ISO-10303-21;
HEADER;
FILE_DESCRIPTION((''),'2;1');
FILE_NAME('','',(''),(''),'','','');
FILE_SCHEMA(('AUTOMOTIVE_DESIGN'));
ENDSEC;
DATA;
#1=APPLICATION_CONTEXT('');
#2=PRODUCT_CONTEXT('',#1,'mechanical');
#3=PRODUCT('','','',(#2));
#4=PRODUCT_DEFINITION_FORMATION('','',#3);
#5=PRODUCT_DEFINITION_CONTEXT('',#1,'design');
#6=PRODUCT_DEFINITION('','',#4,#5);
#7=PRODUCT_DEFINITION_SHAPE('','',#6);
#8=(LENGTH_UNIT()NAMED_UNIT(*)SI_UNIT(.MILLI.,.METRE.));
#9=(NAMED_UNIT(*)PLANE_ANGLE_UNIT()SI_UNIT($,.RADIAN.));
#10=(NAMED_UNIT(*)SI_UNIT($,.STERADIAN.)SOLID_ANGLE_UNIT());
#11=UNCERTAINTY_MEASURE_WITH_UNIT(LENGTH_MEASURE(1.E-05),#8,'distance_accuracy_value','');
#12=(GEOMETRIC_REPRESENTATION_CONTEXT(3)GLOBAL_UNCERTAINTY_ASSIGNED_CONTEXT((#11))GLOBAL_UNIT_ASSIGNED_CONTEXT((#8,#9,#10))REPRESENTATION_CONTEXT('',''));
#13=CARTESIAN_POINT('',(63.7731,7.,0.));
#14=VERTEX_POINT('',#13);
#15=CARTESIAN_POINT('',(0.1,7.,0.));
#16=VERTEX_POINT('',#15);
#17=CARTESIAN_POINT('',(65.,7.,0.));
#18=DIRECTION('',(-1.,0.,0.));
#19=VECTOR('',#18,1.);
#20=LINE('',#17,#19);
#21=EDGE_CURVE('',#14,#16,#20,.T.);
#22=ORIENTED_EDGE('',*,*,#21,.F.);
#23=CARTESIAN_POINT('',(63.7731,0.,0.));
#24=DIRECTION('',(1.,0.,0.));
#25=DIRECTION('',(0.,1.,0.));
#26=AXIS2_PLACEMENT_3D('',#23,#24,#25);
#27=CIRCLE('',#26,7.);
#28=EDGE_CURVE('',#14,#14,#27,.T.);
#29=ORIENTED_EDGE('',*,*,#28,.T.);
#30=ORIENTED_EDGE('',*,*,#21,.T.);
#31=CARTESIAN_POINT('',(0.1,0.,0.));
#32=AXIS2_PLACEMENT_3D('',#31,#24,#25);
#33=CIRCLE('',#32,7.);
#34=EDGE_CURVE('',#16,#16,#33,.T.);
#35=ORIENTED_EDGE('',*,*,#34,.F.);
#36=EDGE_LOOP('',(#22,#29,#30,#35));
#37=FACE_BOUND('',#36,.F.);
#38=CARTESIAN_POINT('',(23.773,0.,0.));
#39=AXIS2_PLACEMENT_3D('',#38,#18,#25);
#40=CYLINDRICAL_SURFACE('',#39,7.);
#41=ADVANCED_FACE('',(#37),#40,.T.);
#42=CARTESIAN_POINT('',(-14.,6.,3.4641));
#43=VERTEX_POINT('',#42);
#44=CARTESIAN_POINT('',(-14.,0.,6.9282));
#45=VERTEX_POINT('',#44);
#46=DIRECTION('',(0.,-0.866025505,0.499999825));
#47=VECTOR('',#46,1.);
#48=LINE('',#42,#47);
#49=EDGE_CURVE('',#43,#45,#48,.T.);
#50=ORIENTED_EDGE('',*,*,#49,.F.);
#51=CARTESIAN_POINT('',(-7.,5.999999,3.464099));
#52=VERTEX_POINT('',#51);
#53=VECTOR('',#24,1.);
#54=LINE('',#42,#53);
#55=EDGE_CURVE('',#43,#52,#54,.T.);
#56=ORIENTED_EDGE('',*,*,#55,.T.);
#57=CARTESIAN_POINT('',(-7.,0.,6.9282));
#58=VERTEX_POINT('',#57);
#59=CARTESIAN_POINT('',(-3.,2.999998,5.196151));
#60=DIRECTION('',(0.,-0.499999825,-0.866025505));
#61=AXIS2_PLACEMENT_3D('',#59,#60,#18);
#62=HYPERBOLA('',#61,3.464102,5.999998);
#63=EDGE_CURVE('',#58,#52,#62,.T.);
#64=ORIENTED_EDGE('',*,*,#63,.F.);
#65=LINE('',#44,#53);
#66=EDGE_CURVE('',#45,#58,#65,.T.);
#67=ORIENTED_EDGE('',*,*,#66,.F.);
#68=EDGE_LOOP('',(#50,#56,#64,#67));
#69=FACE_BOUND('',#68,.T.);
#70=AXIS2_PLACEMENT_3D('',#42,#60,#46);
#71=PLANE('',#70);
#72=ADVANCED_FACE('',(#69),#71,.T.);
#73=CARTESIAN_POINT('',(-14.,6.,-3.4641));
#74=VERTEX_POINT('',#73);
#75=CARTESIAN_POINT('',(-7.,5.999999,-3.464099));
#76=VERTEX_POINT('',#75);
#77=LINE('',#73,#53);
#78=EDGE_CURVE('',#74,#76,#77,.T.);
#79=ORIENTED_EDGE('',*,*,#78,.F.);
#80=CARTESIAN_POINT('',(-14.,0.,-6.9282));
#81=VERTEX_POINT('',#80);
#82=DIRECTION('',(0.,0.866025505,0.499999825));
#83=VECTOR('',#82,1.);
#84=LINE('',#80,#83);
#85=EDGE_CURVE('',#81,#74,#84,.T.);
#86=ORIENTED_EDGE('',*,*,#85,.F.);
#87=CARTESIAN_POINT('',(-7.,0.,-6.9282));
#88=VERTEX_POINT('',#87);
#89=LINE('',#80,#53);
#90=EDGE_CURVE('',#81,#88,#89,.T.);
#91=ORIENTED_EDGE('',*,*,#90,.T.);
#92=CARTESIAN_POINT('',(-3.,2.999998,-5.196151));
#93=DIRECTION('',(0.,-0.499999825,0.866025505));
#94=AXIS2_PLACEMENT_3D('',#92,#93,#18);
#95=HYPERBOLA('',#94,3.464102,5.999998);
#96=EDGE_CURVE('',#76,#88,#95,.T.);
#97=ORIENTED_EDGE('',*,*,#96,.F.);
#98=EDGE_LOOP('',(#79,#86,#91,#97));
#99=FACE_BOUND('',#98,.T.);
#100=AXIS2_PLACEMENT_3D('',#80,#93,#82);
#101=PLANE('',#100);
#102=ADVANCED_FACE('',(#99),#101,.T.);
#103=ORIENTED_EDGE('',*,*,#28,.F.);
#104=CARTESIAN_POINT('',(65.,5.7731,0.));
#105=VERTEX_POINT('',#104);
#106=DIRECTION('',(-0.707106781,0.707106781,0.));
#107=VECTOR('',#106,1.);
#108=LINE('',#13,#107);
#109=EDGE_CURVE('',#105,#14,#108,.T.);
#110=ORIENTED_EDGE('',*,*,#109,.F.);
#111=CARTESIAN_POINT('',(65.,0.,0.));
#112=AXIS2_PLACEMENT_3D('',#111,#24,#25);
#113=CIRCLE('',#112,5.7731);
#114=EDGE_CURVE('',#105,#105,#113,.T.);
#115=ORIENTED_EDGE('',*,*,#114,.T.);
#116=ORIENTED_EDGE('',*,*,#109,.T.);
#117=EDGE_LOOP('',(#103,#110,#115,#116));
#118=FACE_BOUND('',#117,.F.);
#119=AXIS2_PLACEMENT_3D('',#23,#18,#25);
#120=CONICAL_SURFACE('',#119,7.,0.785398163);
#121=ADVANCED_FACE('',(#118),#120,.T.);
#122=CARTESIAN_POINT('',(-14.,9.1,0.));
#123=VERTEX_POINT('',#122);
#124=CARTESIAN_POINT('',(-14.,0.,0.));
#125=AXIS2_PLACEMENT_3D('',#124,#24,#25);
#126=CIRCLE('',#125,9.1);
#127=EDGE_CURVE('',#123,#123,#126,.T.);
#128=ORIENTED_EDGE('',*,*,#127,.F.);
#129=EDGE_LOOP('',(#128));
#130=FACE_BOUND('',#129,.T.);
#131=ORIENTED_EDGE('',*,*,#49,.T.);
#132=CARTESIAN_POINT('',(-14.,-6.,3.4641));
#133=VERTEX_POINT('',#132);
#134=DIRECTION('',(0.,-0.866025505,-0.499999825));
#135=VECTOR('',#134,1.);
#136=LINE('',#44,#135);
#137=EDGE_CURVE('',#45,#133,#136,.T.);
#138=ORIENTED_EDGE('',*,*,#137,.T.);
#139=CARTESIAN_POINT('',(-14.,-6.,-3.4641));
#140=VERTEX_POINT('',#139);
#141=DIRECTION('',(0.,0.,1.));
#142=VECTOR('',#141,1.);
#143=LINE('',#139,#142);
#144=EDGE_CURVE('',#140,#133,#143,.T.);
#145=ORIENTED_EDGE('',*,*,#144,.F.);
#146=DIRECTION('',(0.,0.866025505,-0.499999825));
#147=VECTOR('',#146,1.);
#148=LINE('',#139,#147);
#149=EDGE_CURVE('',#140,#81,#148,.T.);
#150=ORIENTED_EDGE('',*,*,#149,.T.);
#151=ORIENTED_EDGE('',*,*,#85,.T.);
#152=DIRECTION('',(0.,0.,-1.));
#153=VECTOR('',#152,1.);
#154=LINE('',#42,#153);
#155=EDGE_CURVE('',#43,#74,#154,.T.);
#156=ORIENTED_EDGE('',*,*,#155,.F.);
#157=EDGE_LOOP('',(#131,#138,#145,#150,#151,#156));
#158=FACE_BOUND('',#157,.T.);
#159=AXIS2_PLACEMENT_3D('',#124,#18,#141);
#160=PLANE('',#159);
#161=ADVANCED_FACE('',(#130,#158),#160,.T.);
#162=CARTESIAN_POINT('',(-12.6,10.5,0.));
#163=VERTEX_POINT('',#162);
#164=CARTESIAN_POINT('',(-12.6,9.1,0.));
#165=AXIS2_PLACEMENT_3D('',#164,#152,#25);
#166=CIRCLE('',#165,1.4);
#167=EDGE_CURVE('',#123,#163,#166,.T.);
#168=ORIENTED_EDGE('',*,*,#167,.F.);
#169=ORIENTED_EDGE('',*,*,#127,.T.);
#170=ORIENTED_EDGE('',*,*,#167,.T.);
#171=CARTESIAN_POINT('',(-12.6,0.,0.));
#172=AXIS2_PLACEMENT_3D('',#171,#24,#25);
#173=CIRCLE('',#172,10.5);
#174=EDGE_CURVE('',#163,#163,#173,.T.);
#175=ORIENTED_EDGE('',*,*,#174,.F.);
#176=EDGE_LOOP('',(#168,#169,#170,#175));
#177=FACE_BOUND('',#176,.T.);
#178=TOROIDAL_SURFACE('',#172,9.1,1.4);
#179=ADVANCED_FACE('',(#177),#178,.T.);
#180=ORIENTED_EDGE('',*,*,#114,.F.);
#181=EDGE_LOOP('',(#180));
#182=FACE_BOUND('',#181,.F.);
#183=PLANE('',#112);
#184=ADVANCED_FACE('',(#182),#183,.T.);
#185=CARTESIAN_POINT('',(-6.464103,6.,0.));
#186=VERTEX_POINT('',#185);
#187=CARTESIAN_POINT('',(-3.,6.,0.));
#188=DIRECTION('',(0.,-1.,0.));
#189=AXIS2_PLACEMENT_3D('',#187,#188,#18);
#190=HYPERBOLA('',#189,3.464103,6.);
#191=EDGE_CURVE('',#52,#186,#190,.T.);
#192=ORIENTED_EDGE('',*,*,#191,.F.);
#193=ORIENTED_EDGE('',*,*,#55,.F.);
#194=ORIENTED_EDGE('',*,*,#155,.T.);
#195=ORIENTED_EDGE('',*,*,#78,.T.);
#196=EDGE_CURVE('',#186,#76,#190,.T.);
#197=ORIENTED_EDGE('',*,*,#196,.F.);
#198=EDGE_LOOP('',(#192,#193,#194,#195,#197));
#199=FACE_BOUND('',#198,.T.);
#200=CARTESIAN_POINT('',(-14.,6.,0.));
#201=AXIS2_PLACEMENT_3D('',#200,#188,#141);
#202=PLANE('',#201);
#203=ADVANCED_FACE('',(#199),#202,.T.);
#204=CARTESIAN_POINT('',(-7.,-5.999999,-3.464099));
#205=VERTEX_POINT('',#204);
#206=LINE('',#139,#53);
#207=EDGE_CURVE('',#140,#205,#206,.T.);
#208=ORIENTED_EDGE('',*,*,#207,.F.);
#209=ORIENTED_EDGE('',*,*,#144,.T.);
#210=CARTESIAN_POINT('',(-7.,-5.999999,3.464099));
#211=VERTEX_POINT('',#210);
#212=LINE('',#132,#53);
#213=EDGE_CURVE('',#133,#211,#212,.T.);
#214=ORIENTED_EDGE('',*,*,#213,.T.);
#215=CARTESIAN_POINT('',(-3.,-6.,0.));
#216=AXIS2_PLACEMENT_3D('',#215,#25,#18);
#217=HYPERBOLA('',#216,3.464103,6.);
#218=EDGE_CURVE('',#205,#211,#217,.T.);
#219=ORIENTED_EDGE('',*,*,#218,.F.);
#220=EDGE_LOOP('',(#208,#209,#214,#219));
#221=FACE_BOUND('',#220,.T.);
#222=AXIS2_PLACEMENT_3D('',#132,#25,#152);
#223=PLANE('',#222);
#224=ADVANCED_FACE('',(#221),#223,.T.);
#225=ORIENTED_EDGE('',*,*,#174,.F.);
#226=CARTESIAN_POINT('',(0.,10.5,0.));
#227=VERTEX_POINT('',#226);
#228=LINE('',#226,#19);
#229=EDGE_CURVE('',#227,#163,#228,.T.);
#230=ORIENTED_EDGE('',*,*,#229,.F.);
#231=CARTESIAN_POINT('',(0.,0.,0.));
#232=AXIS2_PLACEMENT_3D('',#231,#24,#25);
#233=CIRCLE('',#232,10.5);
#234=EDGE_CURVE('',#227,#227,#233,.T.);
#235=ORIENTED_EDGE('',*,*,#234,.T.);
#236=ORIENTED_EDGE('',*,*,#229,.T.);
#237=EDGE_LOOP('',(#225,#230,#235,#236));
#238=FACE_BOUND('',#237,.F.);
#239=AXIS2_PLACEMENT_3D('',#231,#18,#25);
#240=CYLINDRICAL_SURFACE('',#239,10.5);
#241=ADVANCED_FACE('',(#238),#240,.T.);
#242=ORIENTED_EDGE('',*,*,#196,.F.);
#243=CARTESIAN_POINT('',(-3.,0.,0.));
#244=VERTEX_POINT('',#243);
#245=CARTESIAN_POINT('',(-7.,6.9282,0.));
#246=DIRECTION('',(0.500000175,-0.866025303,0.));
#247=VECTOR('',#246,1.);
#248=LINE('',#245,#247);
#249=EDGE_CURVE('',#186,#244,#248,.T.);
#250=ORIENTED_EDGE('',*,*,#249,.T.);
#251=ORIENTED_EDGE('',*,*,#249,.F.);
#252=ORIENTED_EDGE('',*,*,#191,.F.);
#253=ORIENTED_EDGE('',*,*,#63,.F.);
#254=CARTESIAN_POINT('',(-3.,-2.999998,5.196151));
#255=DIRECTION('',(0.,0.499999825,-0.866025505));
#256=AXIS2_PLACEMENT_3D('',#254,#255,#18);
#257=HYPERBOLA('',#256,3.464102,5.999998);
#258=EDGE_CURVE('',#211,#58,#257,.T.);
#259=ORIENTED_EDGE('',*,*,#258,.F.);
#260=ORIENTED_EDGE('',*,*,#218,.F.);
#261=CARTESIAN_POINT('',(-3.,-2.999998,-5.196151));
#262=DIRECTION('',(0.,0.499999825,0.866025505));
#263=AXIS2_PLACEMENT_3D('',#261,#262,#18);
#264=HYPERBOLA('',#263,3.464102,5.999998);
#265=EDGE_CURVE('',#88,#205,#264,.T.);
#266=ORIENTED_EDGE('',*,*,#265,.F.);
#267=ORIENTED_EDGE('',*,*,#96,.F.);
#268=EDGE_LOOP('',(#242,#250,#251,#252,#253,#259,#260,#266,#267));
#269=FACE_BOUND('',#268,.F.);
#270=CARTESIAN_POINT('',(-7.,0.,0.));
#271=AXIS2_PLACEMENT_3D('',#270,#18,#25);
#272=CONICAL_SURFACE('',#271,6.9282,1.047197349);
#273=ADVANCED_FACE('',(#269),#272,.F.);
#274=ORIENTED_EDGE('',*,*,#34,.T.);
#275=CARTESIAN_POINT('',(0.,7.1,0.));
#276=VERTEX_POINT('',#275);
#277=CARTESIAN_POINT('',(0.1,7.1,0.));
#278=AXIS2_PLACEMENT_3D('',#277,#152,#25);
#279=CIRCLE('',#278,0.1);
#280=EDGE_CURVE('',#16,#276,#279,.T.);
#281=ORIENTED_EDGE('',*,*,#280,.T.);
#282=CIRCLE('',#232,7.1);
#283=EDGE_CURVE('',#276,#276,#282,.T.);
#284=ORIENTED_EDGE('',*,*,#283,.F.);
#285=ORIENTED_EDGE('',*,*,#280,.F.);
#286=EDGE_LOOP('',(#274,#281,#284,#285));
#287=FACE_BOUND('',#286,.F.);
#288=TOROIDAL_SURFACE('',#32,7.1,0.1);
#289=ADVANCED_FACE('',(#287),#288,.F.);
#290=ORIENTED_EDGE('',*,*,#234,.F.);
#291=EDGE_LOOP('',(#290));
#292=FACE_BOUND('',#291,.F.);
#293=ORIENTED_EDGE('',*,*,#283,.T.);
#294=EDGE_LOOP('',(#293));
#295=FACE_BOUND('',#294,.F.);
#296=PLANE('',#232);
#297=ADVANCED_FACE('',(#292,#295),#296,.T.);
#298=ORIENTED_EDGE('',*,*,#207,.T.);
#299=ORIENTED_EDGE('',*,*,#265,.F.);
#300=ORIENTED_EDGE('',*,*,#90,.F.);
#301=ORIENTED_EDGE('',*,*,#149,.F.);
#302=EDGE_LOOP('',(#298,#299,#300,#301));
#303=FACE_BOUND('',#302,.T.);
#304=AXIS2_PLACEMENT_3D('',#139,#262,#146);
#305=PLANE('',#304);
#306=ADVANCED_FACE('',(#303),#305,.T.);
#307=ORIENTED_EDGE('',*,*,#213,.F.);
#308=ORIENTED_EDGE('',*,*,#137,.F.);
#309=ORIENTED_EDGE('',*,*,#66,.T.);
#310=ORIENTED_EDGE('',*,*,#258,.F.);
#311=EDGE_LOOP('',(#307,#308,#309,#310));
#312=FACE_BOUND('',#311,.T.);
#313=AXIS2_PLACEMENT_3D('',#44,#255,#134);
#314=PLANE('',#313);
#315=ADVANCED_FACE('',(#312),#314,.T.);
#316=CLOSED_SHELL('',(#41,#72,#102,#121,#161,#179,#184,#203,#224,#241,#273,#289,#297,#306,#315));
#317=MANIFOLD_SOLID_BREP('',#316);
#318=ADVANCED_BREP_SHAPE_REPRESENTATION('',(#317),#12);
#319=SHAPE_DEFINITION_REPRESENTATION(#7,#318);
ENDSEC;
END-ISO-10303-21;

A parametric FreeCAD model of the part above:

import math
import FreeCAD as App
import Part
import Sketcher
Q = App.Units.Quantity


def edges_at(feature, points):
    """Names of the edges that pass closest to the given points."""
    edges = feature.Shape.Edges
    near = lambda p: min(range(len(edges)), key=lambda i: edges[i].distToShape(Part.Vertex(*p))[0])
    return sorted({f"Edge{near(p) + 1}" for p in points})


def add_polygon(sketch, points):
    """Adds a closed chain of lines whose ends are joined by coincident constraints."""
    first, n = sketch.GeometryCount, len(points)
    for a, b in zip(points, points[1:] + points[:1]):
        sketch.addGeometry(Part.LineSegment(App.Vector(*a, 0), App.Vector(*b, 0)), False)
    for i in range(n):
        sketch.addConstraint(Sketcher.Constraint("Coincident", first + i, 2, first + (i + 1) % n, 1))

doc = App.newDocument("Part")
body = doc.addObject("PartDesign::Body", "Body")

# Sketch on XY plane
sketch1 = body.newObject("Sketcher::SketchObject", "Sketch")
sketch1.AttachmentSupport = (doc.getObject("XY_Plane"), [""])
sketch1.MapMode = "FlatFace"
add_polygon(sketch1, [(-7, 6.9), (-3, 0), (65, 0), (65, 7), (0, 7), (0, 10.5), (-14, 10.5), (-14, 6.9)])  # lines 0-7
sketch1.addConstraint(Sketcher.Constraint("Horizontal", 1))
sketch1.addConstraint(Sketcher.Constraint("Vertical", 2))
sketch1.addConstraint(Sketcher.Constraint("Horizontal", 3))
sketch1.addConstraint(Sketcher.Constraint("Vertical", 4))
sketch1.addConstraint(Sketcher.Constraint("Horizontal", 5))
sketch1.addConstraint(Sketcher.Constraint("Vertical", 6))
sketch1.addConstraint(Sketcher.Constraint("Horizontal", 7))
sketch1.addConstraint(Sketcher.Constraint("PointOnObject", 0, 2, -1))
sketch1.addConstraint(Sketcher.Constraint("PointOnObject", 3, 2, -2))
sketch1.addConstraint(Sketcher.Constraint("Equal", 7, 2))
sketch1.addConstraint(Sketcher.Constraint("DistanceX", 3, 2, 3, 1, Q("65 mm")))
sketch1.addConstraint(Sketcher.Constraint("DistanceX", 5, 2, 5, 1, Q("14 mm")))
sketch1.addConstraint(Sketcher.Constraint("DistanceX", 7, 1, 7, 2, Q("7 mm")))
sketch1.addConstraint(Sketcher.Constraint("Angle", 0, Q("-60 deg")))
sketch1.addConstraint(Sketcher.Constraint("DistanceX", 1, 1, 1, 2, Q("68 mm")))
sketch1.addConstraint(Sketcher.Constraint("DistanceY", 4, 1, 4, 2, Q("3.5 mm")))
revolution = body.newObject("PartDesign::Revolution", "Revolution")
revolution.Profile = sketch1
revolution.ReferenceAxis = (sketch1, ["H_Axis"])
revolution.Angle = 360

# Sketch on YZ plane
sketch2 = body.newObject("Sketcher::SketchObject", "Sketch001")
sketch2.AttachmentSupport = (doc.getObject("YZ_Plane"), [""])
sketch2.MapMode = "FlatFace"
sketch2.AttachmentOffset = App.Placement(App.Vector(0, 0, -14), App.Rotation())
sketch2.addGeometry(Part.LineSegment(App.Vector(6, 3, 0), App.Vector(0, 7, 0)), False)
sketch2.addGeometry(Part.ArcOfCircle(Part.Circle(App.Vector(0, 0, 0), App.Vector(0, 0, 1), 7), math.radians(30), math.radians(90)), False)
sketch2.addGeometry(Part.ArcOfCircle(Part.Circle(App.Vector(0, 0, 0), App.Vector(0, 0, 1), 7), math.radians(90), math.radians(150)), False)
sketch2.addGeometry(Part.LineSegment(App.Vector(0, 7, 0), App.Vector(-6, 3, 0)), False)
sketch2.addGeometry(Part.ArcOfCircle(Part.Circle(App.Vector(0, 0, 0), App.Vector(0, 0, 1), 7), math.radians(-30), math.radians(30)), False)
sketch2.addGeometry(Part.LineSegment(App.Vector(6, 3, 0), App.Vector(6, -3, 0)), False)
sketch2.addGeometry(Part.LineSegment(App.Vector(-6, 3, 0), App.Vector(-6, -3, 0)), False)
sketch2.addGeometry(Part.ArcOfCircle(Part.Circle(App.Vector(0, 0, 0), App.Vector(0, 0, 1), 7), math.radians(150), math.radians(210)), False)
sketch2.addGeometry(Part.LineSegment(App.Vector(-6, -3, 0), App.Vector(0, -7, 0)), False)
sketch2.addGeometry(Part.ArcOfCircle(Part.Circle(App.Vector(0, 0, 0), App.Vector(0, 0, 1), 7), math.radians(-150), math.radians(-90)), False)
sketch2.addGeometry(Part.ArcOfCircle(Part.Circle(App.Vector(0, 0, 0), App.Vector(0, 0, 1), 7), math.radians(-90), math.radians(-30)), False)
sketch2.addGeometry(Part.LineSegment(App.Vector(0, -7, 0), App.Vector(6, -3, 0)), False)
sketch2.addConstraint(Sketcher.Constraint("Coincident", 0, 1, 1, 1))
sketch2.addConstraint(Sketcher.Constraint("Coincident", 1, 2, 0, 2))
sketch2.addConstraint(Sketcher.Constraint("Coincident", 2, 1, 3, 1))
sketch2.addConstraint(Sketcher.Constraint("Coincident", 3, 2, 2, 2))
sketch2.addConstraint(Sketcher.Constraint("Coincident", 4, 1, 5, 2))
sketch2.addConstraint(Sketcher.Constraint("Coincident", 5, 1, 4, 2))
sketch2.addConstraint(Sketcher.Constraint("Coincident", 6, 1, 7, 1))
sketch2.addConstraint(Sketcher.Constraint("Coincident", 7, 2, 6, 2))
sketch2.addConstraint(Sketcher.Constraint("Coincident", 8, 1, 9, 1))
sketch2.addConstraint(Sketcher.Constraint("Coincident", 9, 2, 8, 2))
sketch2.addConstraint(Sketcher.Constraint("Coincident", 10, 1, 11, 1))
sketch2.addConstraint(Sketcher.Constraint("Coincident", 11, 2, 10, 2))
sketch2.addConstraint(Sketcher.Constraint("Vertical", 5))
sketch2.addConstraint(Sketcher.Constraint("Vertical", 6))
sketch2.addConstraint(Sketcher.Constraint("Coincident", 1, 3, -1, 1))
sketch2.addConstraint(Sketcher.Constraint("Coincident", 2, 3, -1, 1))
sketch2.addConstraint(Sketcher.Constraint("Coincident", 4, 3, -1, 1))
sketch2.addConstraint(Sketcher.Constraint("Coincident", 7, 3, -1, 1))
sketch2.addConstraint(Sketcher.Constraint("Coincident", 9, 3, -1, 1))
sketch2.addConstraint(Sketcher.Constraint("Coincident", 10, 3, -1, 1))
sketch2.addConstraint(Sketcher.Constraint("Coincident", 2, 1, 1, 2))
sketch2.addConstraint(Sketcher.Constraint("Coincident", 5, 1, 0, 1))
sketch2.addConstraint(Sketcher.Constraint("Coincident", 6, 1, 3, 2))
sketch2.addConstraint(Sketcher.Constraint("Coincident", 8, 1, 7, 2))
sketch2.addConstraint(Sketcher.Constraint("Coincident", 10, 1, 9, 2))
sketch2.addConstraint(Sketcher.Constraint("PointOnObject", 1, 2, -2))
sketch2.addConstraint(Sketcher.Constraint("PointOnObject", 9, 2, -2))
sketch2.addConstraint(Sketcher.Constraint("Parallel", 0, 8))
sketch2.addConstraint(Sketcher.Constraint("Parallel", 3, 11))
sketch2.addConstraint(Sketcher.Constraint("Angle", 0, Q("150 deg")))
sketch2.addConstraint(Sketcher.Constraint("DistanceX", -1, 1, 0, 1, Q("6 mm")))
pad1 = body.newObject("PartDesign::Pad", "Pad")
pad1.Profile = sketch2
pad1.Type = "UpToFirst"
doc.recompute()

fillet = body.newObject("PartDesign::Fillet", "Fillet")
fillet.Base = (pad1, edges_at(pad1, [(-14, -10.5, 0)]))
fillet.Radius = 1.4
doc.recompute()

chamfer = body.newObject("PartDesign::Chamfer", "Chamfer")
chamfer.Base = (fillet, edges_at(fillet, [(65, -7, 0)]))
chamfer.ChamferType = "Two distances"
chamfer.Size = 1.2269
chamfer.Size2 = 1.2269
doc.recompute()

fillet2 = body.newObject("PartDesign::Fillet", "Fillet001")
fillet2.Base = (chamfer, edges_at(chamfer, [(0, -7, 0)]))
fillet2.Radius = 0.1

doc.recompute()
